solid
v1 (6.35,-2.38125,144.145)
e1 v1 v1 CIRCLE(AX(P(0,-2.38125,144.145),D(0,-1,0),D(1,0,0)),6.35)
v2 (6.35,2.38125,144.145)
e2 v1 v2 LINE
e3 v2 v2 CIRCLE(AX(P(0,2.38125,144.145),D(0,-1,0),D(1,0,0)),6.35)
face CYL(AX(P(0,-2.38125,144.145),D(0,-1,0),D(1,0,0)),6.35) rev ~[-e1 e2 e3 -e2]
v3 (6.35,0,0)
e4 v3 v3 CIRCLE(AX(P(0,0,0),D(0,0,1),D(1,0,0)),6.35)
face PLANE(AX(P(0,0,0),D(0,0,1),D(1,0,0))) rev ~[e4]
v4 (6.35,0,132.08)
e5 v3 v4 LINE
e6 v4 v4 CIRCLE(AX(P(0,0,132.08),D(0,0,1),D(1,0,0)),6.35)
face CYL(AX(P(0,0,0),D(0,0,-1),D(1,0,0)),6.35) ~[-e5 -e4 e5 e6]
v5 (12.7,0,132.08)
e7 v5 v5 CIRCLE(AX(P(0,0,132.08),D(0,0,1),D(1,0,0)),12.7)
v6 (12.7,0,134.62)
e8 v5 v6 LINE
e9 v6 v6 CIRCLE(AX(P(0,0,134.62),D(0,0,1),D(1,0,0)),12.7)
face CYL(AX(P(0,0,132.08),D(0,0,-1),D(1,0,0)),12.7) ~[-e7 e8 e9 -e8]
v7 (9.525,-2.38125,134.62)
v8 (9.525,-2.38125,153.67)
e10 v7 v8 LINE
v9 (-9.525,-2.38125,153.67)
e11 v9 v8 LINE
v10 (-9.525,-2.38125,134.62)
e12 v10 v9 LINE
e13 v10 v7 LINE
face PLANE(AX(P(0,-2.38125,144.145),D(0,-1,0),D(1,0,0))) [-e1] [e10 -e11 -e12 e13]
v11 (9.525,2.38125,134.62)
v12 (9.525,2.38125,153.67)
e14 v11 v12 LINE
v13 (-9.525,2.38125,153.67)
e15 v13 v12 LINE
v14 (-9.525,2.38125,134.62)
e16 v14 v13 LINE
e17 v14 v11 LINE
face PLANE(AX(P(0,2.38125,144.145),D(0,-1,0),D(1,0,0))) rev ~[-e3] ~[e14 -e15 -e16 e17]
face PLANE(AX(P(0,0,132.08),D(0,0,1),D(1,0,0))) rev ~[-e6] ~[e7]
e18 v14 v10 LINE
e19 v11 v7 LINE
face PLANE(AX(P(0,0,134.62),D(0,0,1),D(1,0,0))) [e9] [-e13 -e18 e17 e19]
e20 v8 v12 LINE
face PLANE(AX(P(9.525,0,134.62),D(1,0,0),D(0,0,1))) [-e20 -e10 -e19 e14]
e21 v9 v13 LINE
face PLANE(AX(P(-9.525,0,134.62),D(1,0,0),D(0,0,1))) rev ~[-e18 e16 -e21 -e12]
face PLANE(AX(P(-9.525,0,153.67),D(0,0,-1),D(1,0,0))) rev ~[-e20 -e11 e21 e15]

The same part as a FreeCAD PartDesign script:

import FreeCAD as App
import Part
import Sketcher
Q = App.Units.Quantity


def add_polygon(sketch, points):
    """Adds a closed chain of lines whose ends are joined by coincident constraints."""
    first, n = sketch.GeometryCount, len(points)
    for a, b in zip(points, points[1:] + points[:1]):
        sketch.addGeometry(Part.LineSegment(App.Vector(*a, 0), App.Vector(*b, 0)), False)
    for i in range(n):
        sketch.addConstraint(Sketcher.Constraint("Coincident", first + i, 2, first + (i + 1) % n, 1))

doc = App.newDocument("Part")
body = doc.addObject("PartDesign::Body", "Body")

sketch1 = doc.addObject("Sketcher::SketchObject", "Sketch")
body.addObject(sketch1)
sketch1.AttachmentSupport = (doc.XY_Plane, [""])
sketch1.MapMode = "FlatFace"
sketch1.addGeometry(Part.Circle(App.Vector(0, 0, 0), App.Vector(0, 0, 1), 6.35), False)
sketch1.addConstraint(Sketcher.Constraint("Coincident", 0, 3, -1, 1))
sketch1.addConstraint(Sketcher.Constraint("Diameter", 0, Q("0.5 in")))
pad1 = doc.addObject("PartDesign::Pad", "Pad")
body.addObject(pad1)
pad1.Profile = sketch1
pad1.Length = Q("5.2 in")

sketch2 = doc.addObject("Sketcher::SketchObject", "Sketch001")
body.addObject(sketch2)
sketch2.AttachmentSupport = (doc.XY_Plane, [""])
sketch2.MapMode = "FlatFace"
sketch2.AttachmentOffset = App.Placement(App.Vector(0, 0, 5.2 * 25.4), App.Rotation())
sketch2.addGeometry(Part.Circle(App.Vector(0, 0, 0), App.Vector(0, 0, 1), 12.7), False)
sketch2.addConstraint(Sketcher.Constraint("Coincident", 0, 3, -1, 1))
sketch2.addConstraint(Sketcher.Constraint("Diameter", 0, Q("1 in")))
pad2 = doc.addObject("PartDesign::Pad", "Pad001")
body.addObject(pad2)
pad2.Profile = sketch2
pad2.Length = Q("0.1 in")

sketch3 = doc.addObject("Sketcher::SketchObject", "Sketch002")
body.addObject(sketch3)
sketch3.AttachmentSupport = (doc.XZ_Plane, [""])
sketch3.MapMode = "FlatFace"
add_polygon(sketch3, [(-9.525, 153.67), (-9.525, 134.62), (9.525, 134.62), (9.525, 153.67)])
sketch3.addConstraint(Sketcher.Constraint("Vertical", 0))
sketch3.addConstraint(Sketcher.Constraint("Horizontal", 1))
sketch3.addConstraint(Sketcher.Constraint("Vertical", 2))
sketch3.addConstraint(Sketcher.Constraint("Horizontal", 3))
sketch3.addConstraint(Sketcher.Constraint("Equal", 3, 0))
sketch3.addConstraint(Sketcher.Constraint("DistanceX", 1, 1, 1, 2, Q("0.75 in")))
sketch3.addConstraint(Sketcher.Constraint("DistanceY", -1, 1, 0, 2, Q("5.3 in")))
sketch3.addConstraint(Sketcher.Constraint("DistanceX", 0, 2, -1, 1, Q("0.375 in")))
pad3 = doc.addObject("PartDesign::Pad", "Pad002")
body.addObject(pad3)
pad3.Profile = sketch3
pad3.Length = Q("0.1875 in")
pad3.Midplane = True

sketch4 = doc.addObject("Sketcher::SketchObject", "Sketch003")
body.addObject(sketch4)
sketch4.AttachmentSupport = (doc.XZ_Plane, [""])
sketch4.MapMode = "FlatFace"
sketch4.AttachmentOffset = App.Placement(App.Vector(0, 0, 0.09375 * 25.4), App.Rotation())
sketch4.addGeometry(Part.Circle(App.Vector(0, 144.145, 0), App.Vector(0, 0, 1), 6.35), False)
sketch4.addConstraint(Sketcher.Constraint("PointOnObject", 0, 3, -2))
sketch4.addConstraint(Sketcher.Constraint("Diameter", 0, Q("0.5 in")))
sketch4.addConstraint(Sketcher.Constraint("DistanceY", -1, 1, 0, 3, Q("5.675 in")))
pocket1 = doc.addObject("PartDesign::Pocket", "Pocket")
body.addObject(pocket1)
pocket1.Profile = sketch4
pocket1.Length = Q("0.1875 in")

doc.recompute()
